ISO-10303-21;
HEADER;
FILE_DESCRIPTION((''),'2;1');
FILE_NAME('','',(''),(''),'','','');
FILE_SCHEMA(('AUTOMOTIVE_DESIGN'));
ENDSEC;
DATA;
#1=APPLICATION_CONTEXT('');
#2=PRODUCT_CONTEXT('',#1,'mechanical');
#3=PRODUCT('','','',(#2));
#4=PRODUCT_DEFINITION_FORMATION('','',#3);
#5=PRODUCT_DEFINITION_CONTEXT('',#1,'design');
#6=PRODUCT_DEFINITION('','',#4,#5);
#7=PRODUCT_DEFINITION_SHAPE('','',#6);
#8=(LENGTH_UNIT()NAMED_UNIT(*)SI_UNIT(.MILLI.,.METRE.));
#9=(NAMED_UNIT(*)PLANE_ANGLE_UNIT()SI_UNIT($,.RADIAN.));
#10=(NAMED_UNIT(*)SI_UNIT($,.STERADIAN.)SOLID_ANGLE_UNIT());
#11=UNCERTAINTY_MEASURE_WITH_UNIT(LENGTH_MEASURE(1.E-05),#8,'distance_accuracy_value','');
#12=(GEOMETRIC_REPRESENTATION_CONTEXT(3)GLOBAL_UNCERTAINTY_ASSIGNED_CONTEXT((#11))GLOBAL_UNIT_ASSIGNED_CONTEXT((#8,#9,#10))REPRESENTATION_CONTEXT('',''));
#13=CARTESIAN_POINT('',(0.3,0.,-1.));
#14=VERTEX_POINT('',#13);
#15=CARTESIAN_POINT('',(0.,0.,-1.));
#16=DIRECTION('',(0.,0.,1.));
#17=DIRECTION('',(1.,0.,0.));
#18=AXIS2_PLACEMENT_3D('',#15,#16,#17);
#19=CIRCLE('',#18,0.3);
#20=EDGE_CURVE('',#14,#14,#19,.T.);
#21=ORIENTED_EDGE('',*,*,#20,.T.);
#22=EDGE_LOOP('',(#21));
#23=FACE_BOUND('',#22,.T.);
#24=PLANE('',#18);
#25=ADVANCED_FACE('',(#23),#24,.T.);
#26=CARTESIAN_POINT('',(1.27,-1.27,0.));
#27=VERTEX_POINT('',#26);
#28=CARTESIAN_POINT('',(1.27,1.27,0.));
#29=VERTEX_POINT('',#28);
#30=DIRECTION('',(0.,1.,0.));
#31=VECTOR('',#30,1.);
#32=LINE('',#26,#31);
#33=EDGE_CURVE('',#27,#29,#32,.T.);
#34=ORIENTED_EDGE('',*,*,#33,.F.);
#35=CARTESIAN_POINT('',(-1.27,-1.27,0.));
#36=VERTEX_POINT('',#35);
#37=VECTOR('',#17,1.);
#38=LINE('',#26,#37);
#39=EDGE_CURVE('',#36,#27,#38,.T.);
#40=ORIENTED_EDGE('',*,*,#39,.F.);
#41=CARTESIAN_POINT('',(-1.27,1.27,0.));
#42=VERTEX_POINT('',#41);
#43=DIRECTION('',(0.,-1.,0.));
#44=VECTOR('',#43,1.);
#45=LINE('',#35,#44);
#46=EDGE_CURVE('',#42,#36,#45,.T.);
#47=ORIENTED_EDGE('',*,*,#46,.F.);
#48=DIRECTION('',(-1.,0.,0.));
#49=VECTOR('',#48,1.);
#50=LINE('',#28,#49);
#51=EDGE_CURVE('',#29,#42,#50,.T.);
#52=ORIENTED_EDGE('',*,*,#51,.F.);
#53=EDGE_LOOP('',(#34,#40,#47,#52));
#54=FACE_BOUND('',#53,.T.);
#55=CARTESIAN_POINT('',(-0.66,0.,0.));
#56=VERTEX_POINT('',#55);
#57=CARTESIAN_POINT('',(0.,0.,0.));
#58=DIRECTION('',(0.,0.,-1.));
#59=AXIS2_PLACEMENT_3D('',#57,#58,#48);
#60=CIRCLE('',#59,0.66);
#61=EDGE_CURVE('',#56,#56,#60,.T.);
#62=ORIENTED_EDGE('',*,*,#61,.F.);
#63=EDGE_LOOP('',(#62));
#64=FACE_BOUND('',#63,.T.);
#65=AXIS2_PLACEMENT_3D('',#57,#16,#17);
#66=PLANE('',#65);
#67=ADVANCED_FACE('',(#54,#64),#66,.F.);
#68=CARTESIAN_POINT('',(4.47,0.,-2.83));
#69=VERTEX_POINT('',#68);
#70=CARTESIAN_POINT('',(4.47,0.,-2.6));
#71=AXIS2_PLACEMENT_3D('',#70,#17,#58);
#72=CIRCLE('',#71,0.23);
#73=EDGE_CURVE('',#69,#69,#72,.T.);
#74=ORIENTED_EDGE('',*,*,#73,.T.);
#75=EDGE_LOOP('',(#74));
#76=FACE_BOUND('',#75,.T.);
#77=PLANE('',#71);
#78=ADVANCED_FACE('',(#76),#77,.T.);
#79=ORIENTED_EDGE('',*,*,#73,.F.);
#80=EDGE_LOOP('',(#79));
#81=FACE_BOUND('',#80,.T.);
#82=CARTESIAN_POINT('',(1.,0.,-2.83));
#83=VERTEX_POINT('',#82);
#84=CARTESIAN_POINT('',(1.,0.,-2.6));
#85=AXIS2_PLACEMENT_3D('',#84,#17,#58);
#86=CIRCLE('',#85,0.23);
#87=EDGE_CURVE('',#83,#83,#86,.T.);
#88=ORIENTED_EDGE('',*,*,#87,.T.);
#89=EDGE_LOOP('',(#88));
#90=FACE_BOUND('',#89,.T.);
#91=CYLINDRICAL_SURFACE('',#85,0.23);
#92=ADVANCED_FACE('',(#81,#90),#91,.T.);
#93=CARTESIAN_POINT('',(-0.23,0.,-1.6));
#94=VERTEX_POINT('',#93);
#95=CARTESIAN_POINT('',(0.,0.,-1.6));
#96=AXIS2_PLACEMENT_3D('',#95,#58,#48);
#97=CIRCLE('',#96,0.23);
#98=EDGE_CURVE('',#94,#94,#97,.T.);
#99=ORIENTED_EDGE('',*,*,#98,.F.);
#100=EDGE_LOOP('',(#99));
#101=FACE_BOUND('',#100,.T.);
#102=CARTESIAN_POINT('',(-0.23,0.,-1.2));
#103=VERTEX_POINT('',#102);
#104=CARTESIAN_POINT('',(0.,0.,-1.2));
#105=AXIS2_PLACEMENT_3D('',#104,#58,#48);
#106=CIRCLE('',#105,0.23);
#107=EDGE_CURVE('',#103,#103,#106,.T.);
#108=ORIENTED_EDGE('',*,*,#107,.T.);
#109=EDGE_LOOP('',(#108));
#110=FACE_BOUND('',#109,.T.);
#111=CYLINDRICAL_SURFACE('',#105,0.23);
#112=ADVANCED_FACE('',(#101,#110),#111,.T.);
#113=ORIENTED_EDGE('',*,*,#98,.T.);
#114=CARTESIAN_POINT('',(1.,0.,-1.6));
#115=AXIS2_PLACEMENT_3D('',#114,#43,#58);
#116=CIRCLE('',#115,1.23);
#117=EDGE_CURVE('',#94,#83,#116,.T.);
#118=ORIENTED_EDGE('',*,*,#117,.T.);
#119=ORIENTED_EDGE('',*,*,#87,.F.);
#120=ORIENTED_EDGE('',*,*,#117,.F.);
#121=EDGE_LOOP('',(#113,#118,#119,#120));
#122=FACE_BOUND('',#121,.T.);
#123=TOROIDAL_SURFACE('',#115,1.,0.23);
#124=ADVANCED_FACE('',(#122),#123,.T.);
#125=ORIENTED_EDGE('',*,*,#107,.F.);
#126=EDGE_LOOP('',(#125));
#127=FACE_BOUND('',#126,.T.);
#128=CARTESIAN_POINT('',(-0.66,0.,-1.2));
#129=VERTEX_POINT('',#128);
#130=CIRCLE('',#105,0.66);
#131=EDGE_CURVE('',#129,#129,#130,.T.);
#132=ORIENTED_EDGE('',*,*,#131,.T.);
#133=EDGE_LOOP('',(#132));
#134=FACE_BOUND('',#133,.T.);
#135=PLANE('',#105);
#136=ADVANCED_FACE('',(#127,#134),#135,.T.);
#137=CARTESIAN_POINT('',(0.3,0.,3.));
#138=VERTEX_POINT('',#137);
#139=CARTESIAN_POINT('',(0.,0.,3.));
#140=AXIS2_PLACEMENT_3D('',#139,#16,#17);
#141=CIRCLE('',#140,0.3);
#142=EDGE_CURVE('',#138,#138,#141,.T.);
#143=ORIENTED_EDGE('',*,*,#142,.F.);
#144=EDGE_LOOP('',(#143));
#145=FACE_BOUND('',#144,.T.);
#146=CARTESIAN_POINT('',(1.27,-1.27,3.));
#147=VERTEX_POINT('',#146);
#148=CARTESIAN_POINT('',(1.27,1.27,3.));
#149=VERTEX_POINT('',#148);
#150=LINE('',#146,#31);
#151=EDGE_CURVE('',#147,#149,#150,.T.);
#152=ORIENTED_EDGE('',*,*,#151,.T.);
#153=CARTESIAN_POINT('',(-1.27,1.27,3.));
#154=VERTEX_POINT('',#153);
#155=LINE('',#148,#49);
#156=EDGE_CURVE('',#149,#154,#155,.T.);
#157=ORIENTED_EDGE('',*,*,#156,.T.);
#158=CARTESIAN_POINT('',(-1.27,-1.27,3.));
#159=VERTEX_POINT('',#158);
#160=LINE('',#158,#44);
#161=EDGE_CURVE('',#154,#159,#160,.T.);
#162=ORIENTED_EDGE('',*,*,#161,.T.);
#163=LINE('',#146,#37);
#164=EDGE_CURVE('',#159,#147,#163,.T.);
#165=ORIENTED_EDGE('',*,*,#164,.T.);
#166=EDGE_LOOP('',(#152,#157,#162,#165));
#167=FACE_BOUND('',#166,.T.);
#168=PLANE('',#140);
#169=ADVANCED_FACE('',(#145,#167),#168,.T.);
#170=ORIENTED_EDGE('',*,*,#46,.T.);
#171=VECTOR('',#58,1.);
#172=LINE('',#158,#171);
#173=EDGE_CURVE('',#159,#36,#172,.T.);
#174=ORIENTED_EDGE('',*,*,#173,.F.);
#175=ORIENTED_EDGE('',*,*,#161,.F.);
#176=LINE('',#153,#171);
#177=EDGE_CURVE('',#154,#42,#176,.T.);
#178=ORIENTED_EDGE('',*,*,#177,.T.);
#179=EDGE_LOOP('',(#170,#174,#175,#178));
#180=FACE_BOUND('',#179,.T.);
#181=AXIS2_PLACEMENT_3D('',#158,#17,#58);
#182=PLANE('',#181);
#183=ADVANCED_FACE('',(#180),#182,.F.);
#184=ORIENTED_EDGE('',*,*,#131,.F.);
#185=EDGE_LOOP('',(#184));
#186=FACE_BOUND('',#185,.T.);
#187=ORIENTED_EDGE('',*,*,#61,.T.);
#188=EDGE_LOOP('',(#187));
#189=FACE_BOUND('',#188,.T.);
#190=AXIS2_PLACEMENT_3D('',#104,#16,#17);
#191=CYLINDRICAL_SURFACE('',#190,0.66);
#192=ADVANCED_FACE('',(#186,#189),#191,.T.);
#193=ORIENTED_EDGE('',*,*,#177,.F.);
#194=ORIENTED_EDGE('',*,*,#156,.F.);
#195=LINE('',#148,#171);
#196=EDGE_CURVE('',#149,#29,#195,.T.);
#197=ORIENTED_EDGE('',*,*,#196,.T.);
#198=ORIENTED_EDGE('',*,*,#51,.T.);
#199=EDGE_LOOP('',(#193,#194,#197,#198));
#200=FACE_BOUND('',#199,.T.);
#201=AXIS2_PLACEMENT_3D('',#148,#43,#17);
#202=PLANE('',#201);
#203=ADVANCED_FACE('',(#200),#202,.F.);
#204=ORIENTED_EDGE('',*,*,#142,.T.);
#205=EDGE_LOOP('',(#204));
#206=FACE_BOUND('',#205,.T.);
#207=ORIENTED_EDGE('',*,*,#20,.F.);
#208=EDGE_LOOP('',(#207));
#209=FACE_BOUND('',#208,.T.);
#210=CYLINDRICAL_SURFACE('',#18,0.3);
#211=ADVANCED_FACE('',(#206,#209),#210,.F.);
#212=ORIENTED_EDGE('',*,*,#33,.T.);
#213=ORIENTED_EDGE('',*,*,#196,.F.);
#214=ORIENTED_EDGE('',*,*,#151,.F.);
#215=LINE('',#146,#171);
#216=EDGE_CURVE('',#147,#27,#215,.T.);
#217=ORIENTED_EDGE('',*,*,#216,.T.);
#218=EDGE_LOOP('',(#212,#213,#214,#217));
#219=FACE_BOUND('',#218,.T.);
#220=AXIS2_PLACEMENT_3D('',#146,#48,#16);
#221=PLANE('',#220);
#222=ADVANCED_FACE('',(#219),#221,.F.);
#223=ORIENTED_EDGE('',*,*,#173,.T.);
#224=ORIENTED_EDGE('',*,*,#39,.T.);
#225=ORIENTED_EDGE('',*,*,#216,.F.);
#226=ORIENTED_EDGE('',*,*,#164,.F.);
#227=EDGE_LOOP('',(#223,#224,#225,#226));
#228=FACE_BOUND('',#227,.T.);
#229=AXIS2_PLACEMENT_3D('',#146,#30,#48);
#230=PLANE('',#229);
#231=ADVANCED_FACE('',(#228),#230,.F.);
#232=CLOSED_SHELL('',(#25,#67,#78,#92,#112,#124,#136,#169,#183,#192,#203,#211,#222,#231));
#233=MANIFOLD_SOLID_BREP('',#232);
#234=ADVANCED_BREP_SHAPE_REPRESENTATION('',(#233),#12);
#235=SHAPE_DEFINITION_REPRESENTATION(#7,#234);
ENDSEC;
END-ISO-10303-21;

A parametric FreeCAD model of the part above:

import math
import FreeCAD as App
import Part
import Sketcher

V = App.Vector
Q = App.Units.Quantity

doc = App.newDocument("Part")
params = doc.addObject("Spreadsheet::Sheet", "Params")
for row, (alias, value) in enumerate([
    ("sketch1_width", "2.54 mm"),
    ("pad1_length", "3 mm"),
    ("sketch2_diameter", "1.32 mm"),
    ("pad2_length", "1.2 mm"),
    ("sketch3_diameter", "0.6 mm"),
    ("pocket1_length", "4 mm"),
    ("sketch4_diameter", "0.46 mm"),
    ("sketch5_radius", "1 mm"),
    ("sketch5_height", "0.4 mm"),
    ("sketch5_width", "3.47 mm"),
], start=1):
    params.set(f"A{row}", alias)
    params.set(f"B{row}", "=" + value)
    params.setAlias(f"B{row}", alias)

body = doc.addObject("PartDesign::Body", "Body")

sketch1 = body.newObject("Sketcher::SketchObject", "Sketch")
sketch1.AttachmentSupport = (doc.getObject("XY_Plane"), [""])
sketch1.MapMode = "FlatFace"
sketch1.addGeometry([
    Part.LineSegment(V(-1.3, 1.3, 0), V(-1.3, -1.3, 0)),
    Part.LineSegment(V(-1.3, -1.3, 0), V(1.3, -1.3, 0)),
    Part.LineSegment(V(1.3, -1.3, 0), V(1.3, 1.3, 0)),
    Part.LineSegment(V(1.3, 1.3, 0), V(-1.3, 1.3, 0)),
], False)
sketch1.addConstraint([
    Sketcher.Constraint("Coincident", 0, 2, 1, 1),
    Sketcher.Constraint("Coincident", 1, 2, 2, 1),
    Sketcher.Constraint("Coincident", 2, 2, 3, 1),
    Sketcher.Constraint("Coincident", 3, 2, 0, 1),
    Sketcher.Constraint("Vertical", 0),
    Sketcher.Constraint("Horizontal", 1),
    Sketcher.Constraint("Vertical", 2),
    Sketcher.Constraint("Horizontal", 3),
    Sketcher.Constraint("Symmetric", 0, 2, 2, 2, -1, 1),
    Sketcher.Constraint("Equal", 3, 0),
    Sketcher.Constraint("DistanceX", 1, 1, 1, 2, Q("2.54 mm")),
])
sketch1.setExpression("Constraints[10]", "Params.sketch1_width")
pad1 = body.newObject("PartDesign::Pad", "Pad")
pad1.Profile = sketch1
pad1.setExpression("Length", "Params.pad1_length")

sketch2 = body.newObject("Sketcher::SketchObject", "Sketch001")
sketch2.AttachmentSupport = (doc.getObject("XY_Plane"), [""])
sketch2.MapMode = "FlatFace"
sketch2.addGeometry(Part.Circle(V(0, 0, 0), V(0, 0, 1), 0.7), False)
sketch2.addConstraint([
    Sketcher.Constraint("Coincident", 0, 3, -1, 1),
    Sketcher.Constraint("Diameter", 0, Q("1.32 mm")),
])
sketch2.setExpression("Constraints[1]", "Params.sketch2_diameter")
pad2 = body.newObject("PartDesign::Pad", "Pad001")
pad2.Profile = sketch2
pad2.setExpression("Length", "Params.pad2_length")
pad2.Reversed = True

sketch3 = body.newObject("Sketcher::SketchObject", "Sketch002")
sketch3.AttachmentSupport = (doc.getObject("XY_Plane"), [""])
sketch3.MapMode = "FlatFace"
sketch3.AttachmentOffset = App.Placement(V(0, 0, 3), App.Rotation())
sketch3.addGeometry(Part.Circle(V(0, 0, 0), V(0, 0, 1), 0.3), False)
sketch3.addConstraint([
    Sketcher.Constraint("Coincident", 0, 3, -1, 1),
    Sketcher.Constraint("Diameter", 0, Q("0.6 mm")),
])
sketch3.setExpression("Constraints[1]", "Params.sketch3_diameter")
pocket1 = body.newObject("PartDesign::Pocket", "Pocket")
pocket1.Profile = sketch3
pocket1.setExpression("Length", "Params.pocket1_length")

sketch4 = body.newObject("Sketcher::SketchObject", "Sketch003")
sketch4.AttachmentSupport = (doc.getObject("XY_Plane"), [""])
sketch4.MapMode = "FlatFace"
sketch4.AttachmentOffset = App.Placement(V(0, 0, -1.2), App.Rotation())
sketch4.addGeometry(Part.Circle(V(0, 0, 0), V(0, 0, 1), 0.23), False)
sketch4.addConstraint([
    Sketcher.Constraint("Coincident", 0, 3, -1, 1),
    Sketcher.Constraint("Diameter", 0, Q("0.46 mm")),
])
sketch4.setExpression("Constraints[1]", "Params.sketch4_diameter")

sketch5 = body.newObject("Sketcher::SketchObject", "Sketch004")
sketch5.AttachmentSupport = (doc.getObject("XZ_Plane"), [""])
sketch5.MapMode = "FlatFace"
sketch5.addGeometry([
    Part.LineSegment(V(0, -1.2, 0), V(0, -1.6, 0)),
    Part.ArcOfCircle(Part.Circle(V(1, -1.6, 0), V(0, 0, 1), 1), math.radians(-180), math.radians(-90)),
    Part.LineSegment(V(1, -2.6, 0), V(4.47, -2.6, 0)),
], False)
sketch5.addConstraint([
    Sketcher.Constraint("Tangent", 0, 2, 1, 1),
    Sketcher.Constraint("Tangent", 1, 2, 2, 1),
    Sketcher.Constraint("Vertical", 0),
    Sketcher.Constraint("Horizontal", 2),
    Sketcher.Constraint("PointOnObject", 0, 1, -2),
    Sketcher.Constraint("Radius", 1, Q("1 mm")),
    Sketcher.Constraint("DistanceY", 0, 2, 0, 1, Q("0.4 mm")),
    Sketcher.Constraint("DistanceX", 2, 1, 2, 2, Q("3.47 mm")),
    Sketcher.Constraint("DistanceY", 1, 3, -1, 1, Q("1.6 mm")),
])
sketch5.setExpression("Constraints[5]", "Params.sketch5_radius")
sketch5.setExpression("Constraints[6]", "Params.sketch5_height")
sketch5.setExpression("Constraints[7]", "Params.sketch5_width")
doc.recompute()

additivepipe = body.newObject("PartDesign::AdditivePipe", "AdditivePipe")
additivepipe.Profile = sketch4
additivepipe.Spine = (sketch5, ["Edge1", "Edge2", "Edge3"])

doc.recompute()
